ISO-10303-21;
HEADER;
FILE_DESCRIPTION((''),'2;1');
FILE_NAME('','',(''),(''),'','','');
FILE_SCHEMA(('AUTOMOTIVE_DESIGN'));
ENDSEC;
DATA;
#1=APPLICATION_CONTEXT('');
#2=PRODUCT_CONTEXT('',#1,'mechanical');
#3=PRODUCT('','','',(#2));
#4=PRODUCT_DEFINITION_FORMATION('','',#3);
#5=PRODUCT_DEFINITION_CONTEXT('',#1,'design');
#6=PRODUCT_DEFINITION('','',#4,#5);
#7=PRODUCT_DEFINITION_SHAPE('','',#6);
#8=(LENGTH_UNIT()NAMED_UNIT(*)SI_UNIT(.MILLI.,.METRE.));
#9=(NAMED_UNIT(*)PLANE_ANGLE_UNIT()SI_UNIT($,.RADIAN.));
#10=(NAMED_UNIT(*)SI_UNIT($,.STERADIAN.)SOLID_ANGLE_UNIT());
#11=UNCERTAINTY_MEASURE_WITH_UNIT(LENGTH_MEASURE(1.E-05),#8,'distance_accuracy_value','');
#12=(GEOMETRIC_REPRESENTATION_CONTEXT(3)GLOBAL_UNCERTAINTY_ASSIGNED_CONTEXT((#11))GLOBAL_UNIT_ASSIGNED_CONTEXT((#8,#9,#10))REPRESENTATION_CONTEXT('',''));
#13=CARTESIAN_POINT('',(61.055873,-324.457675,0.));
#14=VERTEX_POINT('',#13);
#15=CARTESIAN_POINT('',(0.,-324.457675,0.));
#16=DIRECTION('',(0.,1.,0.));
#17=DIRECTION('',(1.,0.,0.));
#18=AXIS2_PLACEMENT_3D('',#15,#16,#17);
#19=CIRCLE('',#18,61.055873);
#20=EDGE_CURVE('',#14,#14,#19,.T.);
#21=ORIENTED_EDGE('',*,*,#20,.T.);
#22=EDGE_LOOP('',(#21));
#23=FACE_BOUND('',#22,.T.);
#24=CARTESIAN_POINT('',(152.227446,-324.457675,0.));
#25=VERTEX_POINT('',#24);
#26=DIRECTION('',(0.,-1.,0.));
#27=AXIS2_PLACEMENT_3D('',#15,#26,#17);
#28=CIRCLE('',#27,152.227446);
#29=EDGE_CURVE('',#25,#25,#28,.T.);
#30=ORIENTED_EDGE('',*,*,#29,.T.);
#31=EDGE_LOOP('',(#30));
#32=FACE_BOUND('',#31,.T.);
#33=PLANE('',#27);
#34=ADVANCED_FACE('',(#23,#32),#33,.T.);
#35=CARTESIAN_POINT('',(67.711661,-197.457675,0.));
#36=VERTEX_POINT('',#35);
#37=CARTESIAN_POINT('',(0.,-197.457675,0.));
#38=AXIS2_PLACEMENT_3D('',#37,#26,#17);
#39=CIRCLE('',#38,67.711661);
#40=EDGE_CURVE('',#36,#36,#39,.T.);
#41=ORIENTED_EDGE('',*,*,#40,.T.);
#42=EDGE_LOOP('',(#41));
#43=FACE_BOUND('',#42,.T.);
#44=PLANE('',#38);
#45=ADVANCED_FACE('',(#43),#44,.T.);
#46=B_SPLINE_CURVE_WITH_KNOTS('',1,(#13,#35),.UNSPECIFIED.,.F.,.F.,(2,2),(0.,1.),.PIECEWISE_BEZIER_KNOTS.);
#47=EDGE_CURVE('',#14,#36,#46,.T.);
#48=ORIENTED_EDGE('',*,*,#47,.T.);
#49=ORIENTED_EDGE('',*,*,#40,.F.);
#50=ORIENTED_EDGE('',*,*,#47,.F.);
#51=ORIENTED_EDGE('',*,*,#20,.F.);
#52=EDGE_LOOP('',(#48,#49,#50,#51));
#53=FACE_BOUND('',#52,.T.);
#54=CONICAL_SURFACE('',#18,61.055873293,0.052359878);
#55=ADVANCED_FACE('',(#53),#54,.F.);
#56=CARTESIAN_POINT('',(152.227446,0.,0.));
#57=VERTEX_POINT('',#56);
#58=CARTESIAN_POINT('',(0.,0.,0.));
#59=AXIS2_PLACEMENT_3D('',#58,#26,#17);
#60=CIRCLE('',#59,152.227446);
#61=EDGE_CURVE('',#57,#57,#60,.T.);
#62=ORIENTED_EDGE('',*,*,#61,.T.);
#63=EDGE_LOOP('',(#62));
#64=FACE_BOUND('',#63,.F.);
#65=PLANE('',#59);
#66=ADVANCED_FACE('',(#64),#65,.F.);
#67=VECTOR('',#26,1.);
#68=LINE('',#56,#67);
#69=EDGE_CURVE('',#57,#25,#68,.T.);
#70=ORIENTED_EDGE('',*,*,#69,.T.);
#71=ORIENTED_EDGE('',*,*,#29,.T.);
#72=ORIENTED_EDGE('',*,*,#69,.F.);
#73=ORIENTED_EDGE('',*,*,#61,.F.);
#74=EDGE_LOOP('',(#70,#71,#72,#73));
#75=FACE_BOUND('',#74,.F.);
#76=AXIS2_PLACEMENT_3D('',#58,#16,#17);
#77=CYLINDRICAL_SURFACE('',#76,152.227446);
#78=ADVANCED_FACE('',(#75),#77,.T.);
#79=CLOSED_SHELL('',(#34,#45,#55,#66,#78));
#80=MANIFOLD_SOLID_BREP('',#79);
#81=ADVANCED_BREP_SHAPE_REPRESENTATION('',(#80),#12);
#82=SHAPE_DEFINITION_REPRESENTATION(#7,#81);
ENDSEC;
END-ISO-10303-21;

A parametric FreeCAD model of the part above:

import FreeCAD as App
import Part
import Sketcher

doc = App.newDocument("Part")
params = doc.addObject("Spreadsheet::Sheet", "Params")
for row, (alias, value) in enumerate([
    ("pad1_length", "324.457675 mm"),
    ("pocket1_length", "5 in"),
    ("pocket1_taper", "3 deg"),
], start=1):
    params.set(f"A{row}", alias)
    params.set(f"B{row}", "=" + value)
    params.setAlias(f"B{row}", alias)

body = doc.addObject("PartDesign::Body", "Body")

sketch1 = body.newObject("Sketcher::SketchObject", "Sketch")
sketch1.AttachmentSupport = (doc.getObject("XZ_Plane"), [""])
sketch1.MapMode = "FlatFace"
sketch1.addGeometry(Part.Circle(App.Vector(0, 0, 0), App.Vector(0, 0, 1), 152.227446), False)
sketch1.addConstraint([
    Sketcher.Constraint("Coincident", 0, 3, -1, 1),
    Sketcher.Constraint("Diameter", 0, 304.454891),
])
pad1 = body.newObject("PartDesign::Pad", "Pad")
pad1.Profile = sketch1
pad1.setExpression("Length", "Params.pad1_length")

sketch2 = body.newObject("Sketcher::SketchObject", "Sketch001")
sketch2.AttachmentSupport = (doc.getObject("XZ_Plane"), [""])
sketch2.MapMode = "FlatFace"
sketch2.AttachmentOffset = App.Placement(App.Vector(0, 0, 324.457675), App.Rotation())
sketch2.addGeometry(Part.Circle(App.Vector(0, 0, 0), App.Vector(0, 0, 1), 61.055873), False)
sketch2.addConstraint([
    Sketcher.Constraint("Coincident", 0, 3, -1, 1),
    Sketcher.Constraint("Diameter", 0, 122.111747),
])
pocket1 = body.newObject("PartDesign::Pocket", "Pocket")
pocket1.Profile = sketch2
pocket1.setExpression("Length", "Params.pocket1_length")
pocket1.setExpression("TaperAngle", "Params.pocket1_taper")

doc.recompute()
